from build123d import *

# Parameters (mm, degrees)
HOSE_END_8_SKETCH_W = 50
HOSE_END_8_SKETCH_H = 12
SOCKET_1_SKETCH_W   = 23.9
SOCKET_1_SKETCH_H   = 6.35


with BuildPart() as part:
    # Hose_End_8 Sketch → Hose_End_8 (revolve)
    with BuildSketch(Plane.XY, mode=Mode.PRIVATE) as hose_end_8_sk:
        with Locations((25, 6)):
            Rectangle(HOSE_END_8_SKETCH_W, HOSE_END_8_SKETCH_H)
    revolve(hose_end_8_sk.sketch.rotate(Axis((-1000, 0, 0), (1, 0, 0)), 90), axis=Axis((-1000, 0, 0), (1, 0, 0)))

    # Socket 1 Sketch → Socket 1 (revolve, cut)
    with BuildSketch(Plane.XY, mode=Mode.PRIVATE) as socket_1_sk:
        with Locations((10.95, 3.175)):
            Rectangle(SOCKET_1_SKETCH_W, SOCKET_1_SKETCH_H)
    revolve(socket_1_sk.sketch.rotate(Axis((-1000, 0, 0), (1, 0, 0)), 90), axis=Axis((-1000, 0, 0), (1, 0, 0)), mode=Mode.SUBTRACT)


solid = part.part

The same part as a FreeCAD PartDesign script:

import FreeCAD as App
import Part
import Sketcher
from FreeCAD import Vector
Q = App.Units.Quantity

doc = App.newDocument("Part")
body = doc.addObject("PartDesign::Body", "Body")

sketch1 = doc.addObject("Sketcher::SketchObject", "Sketch")
body.addObject(sketch1)
sketch1.AttachmentSupport = (doc.XY_Plane, [""])
sketch1.MapMode = "FlatFace"
sketch1.addGeometry([
    Part.LineSegment(Vector(0, 12, 0), Vector(0, 0, 0)),
    Part.LineSegment(Vector(0, 0, 0), Vector(50, 0, 0)),
    Part.LineSegment(Vector(50, 0, 0), Vector(50, 12, 0)),
    Part.LineSegment(Vector(50, 12, 0), Vector(0, 12, 0)),
], False)
sketch1.addConstraint([
    Sketcher.Constraint("Coincident", 0, 2, 1, 1),
    Sketcher.Constraint("Coincident", 1, 2, 2, 1),
    Sketcher.Constraint("Coincident", 2, 2, 3, 1),
    Sketcher.Constraint("Coincident", 3, 2, 0, 1),
    Sketcher.Constraint("Vertical", 0),
    Sketcher.Constraint("Horizontal", 1),
    Sketcher.Constraint("Vertical", 2),
    Sketcher.Constraint("Horizontal", 3),
    Sketcher.Constraint("Coincident", 0, 2, -1, 1),
    Sketcher.Constraint("DistanceX", 1, 1, 1, 2, Q("50 mm")),
    Sketcher.Constraint("DistanceY", 0, 2, 0, 1, Q("12 mm")),
])
revolution = doc.addObject("PartDesign::Revolution", "Revolution")
body.addObject(revolution)
revolution.Profile = sketch1
revolution.ReferenceAxis = (sketch1, ["H_Axis"])
revolution.Angle = 360

sketch2 = doc.addObject("Sketcher::SketchObject", "Sketch001")
body.addObject(sketch2)
sketch2.AttachmentSupport = (doc.XY_Plane, [""])
sketch2.MapMode = "FlatFace"
sketch2.addGeometry([
    Part.LineSegment(Vector(-1, 6, 0), Vector(-1, 0, 0)),
    Part.LineSegment(Vector(-1, 0, 0), Vector(23, 0, 0)),
    Part.LineSegment(Vector(23, 0, 0), Vector(23, 6, 0)),
    Part.LineSegment(Vector(23, 6, 0), Vector(-1, 6, 0)),
], False)
sketch2.addConstraint([
    Sketcher.Constraint("Coincident", 0, 2, 1, 1),
    Sketcher.Constraint("Coincident", 1, 2, 2, 1),
    Sketcher.Constraint("Coincident", 2, 2, 3, 1),
    Sketcher.Constraint("Coincident", 3, 2, 0, 1),
    Sketcher.Constraint("Vertical", 0),
    Sketcher.Constraint("Horizontal", 1),
    Sketcher.Constraint("Vertical", 2),
    Sketcher.Constraint("Horizontal", 3),
    Sketcher.Constraint("PointOnObject", 0, 2, -1),
    Sketcher.Constraint("DistanceX", 1, 1, 1, 2, Q("23.9 mm")),
    Sketcher.Constraint("DistanceX", 0, 2, -1, 1, Q("1 mm")),
    Sketcher.Constraint("DistanceY", 0, 2, 0, 1, Q("6.35 mm")),
])
groove = doc.addObject("PartDesign::Groove", "Groove")
body.addObject(groove)
groove.Profile = sketch2
groove.ReferenceAxis = (sketch2, ["H_Axis"])
groove.Angle = 360

doc.recompute()
